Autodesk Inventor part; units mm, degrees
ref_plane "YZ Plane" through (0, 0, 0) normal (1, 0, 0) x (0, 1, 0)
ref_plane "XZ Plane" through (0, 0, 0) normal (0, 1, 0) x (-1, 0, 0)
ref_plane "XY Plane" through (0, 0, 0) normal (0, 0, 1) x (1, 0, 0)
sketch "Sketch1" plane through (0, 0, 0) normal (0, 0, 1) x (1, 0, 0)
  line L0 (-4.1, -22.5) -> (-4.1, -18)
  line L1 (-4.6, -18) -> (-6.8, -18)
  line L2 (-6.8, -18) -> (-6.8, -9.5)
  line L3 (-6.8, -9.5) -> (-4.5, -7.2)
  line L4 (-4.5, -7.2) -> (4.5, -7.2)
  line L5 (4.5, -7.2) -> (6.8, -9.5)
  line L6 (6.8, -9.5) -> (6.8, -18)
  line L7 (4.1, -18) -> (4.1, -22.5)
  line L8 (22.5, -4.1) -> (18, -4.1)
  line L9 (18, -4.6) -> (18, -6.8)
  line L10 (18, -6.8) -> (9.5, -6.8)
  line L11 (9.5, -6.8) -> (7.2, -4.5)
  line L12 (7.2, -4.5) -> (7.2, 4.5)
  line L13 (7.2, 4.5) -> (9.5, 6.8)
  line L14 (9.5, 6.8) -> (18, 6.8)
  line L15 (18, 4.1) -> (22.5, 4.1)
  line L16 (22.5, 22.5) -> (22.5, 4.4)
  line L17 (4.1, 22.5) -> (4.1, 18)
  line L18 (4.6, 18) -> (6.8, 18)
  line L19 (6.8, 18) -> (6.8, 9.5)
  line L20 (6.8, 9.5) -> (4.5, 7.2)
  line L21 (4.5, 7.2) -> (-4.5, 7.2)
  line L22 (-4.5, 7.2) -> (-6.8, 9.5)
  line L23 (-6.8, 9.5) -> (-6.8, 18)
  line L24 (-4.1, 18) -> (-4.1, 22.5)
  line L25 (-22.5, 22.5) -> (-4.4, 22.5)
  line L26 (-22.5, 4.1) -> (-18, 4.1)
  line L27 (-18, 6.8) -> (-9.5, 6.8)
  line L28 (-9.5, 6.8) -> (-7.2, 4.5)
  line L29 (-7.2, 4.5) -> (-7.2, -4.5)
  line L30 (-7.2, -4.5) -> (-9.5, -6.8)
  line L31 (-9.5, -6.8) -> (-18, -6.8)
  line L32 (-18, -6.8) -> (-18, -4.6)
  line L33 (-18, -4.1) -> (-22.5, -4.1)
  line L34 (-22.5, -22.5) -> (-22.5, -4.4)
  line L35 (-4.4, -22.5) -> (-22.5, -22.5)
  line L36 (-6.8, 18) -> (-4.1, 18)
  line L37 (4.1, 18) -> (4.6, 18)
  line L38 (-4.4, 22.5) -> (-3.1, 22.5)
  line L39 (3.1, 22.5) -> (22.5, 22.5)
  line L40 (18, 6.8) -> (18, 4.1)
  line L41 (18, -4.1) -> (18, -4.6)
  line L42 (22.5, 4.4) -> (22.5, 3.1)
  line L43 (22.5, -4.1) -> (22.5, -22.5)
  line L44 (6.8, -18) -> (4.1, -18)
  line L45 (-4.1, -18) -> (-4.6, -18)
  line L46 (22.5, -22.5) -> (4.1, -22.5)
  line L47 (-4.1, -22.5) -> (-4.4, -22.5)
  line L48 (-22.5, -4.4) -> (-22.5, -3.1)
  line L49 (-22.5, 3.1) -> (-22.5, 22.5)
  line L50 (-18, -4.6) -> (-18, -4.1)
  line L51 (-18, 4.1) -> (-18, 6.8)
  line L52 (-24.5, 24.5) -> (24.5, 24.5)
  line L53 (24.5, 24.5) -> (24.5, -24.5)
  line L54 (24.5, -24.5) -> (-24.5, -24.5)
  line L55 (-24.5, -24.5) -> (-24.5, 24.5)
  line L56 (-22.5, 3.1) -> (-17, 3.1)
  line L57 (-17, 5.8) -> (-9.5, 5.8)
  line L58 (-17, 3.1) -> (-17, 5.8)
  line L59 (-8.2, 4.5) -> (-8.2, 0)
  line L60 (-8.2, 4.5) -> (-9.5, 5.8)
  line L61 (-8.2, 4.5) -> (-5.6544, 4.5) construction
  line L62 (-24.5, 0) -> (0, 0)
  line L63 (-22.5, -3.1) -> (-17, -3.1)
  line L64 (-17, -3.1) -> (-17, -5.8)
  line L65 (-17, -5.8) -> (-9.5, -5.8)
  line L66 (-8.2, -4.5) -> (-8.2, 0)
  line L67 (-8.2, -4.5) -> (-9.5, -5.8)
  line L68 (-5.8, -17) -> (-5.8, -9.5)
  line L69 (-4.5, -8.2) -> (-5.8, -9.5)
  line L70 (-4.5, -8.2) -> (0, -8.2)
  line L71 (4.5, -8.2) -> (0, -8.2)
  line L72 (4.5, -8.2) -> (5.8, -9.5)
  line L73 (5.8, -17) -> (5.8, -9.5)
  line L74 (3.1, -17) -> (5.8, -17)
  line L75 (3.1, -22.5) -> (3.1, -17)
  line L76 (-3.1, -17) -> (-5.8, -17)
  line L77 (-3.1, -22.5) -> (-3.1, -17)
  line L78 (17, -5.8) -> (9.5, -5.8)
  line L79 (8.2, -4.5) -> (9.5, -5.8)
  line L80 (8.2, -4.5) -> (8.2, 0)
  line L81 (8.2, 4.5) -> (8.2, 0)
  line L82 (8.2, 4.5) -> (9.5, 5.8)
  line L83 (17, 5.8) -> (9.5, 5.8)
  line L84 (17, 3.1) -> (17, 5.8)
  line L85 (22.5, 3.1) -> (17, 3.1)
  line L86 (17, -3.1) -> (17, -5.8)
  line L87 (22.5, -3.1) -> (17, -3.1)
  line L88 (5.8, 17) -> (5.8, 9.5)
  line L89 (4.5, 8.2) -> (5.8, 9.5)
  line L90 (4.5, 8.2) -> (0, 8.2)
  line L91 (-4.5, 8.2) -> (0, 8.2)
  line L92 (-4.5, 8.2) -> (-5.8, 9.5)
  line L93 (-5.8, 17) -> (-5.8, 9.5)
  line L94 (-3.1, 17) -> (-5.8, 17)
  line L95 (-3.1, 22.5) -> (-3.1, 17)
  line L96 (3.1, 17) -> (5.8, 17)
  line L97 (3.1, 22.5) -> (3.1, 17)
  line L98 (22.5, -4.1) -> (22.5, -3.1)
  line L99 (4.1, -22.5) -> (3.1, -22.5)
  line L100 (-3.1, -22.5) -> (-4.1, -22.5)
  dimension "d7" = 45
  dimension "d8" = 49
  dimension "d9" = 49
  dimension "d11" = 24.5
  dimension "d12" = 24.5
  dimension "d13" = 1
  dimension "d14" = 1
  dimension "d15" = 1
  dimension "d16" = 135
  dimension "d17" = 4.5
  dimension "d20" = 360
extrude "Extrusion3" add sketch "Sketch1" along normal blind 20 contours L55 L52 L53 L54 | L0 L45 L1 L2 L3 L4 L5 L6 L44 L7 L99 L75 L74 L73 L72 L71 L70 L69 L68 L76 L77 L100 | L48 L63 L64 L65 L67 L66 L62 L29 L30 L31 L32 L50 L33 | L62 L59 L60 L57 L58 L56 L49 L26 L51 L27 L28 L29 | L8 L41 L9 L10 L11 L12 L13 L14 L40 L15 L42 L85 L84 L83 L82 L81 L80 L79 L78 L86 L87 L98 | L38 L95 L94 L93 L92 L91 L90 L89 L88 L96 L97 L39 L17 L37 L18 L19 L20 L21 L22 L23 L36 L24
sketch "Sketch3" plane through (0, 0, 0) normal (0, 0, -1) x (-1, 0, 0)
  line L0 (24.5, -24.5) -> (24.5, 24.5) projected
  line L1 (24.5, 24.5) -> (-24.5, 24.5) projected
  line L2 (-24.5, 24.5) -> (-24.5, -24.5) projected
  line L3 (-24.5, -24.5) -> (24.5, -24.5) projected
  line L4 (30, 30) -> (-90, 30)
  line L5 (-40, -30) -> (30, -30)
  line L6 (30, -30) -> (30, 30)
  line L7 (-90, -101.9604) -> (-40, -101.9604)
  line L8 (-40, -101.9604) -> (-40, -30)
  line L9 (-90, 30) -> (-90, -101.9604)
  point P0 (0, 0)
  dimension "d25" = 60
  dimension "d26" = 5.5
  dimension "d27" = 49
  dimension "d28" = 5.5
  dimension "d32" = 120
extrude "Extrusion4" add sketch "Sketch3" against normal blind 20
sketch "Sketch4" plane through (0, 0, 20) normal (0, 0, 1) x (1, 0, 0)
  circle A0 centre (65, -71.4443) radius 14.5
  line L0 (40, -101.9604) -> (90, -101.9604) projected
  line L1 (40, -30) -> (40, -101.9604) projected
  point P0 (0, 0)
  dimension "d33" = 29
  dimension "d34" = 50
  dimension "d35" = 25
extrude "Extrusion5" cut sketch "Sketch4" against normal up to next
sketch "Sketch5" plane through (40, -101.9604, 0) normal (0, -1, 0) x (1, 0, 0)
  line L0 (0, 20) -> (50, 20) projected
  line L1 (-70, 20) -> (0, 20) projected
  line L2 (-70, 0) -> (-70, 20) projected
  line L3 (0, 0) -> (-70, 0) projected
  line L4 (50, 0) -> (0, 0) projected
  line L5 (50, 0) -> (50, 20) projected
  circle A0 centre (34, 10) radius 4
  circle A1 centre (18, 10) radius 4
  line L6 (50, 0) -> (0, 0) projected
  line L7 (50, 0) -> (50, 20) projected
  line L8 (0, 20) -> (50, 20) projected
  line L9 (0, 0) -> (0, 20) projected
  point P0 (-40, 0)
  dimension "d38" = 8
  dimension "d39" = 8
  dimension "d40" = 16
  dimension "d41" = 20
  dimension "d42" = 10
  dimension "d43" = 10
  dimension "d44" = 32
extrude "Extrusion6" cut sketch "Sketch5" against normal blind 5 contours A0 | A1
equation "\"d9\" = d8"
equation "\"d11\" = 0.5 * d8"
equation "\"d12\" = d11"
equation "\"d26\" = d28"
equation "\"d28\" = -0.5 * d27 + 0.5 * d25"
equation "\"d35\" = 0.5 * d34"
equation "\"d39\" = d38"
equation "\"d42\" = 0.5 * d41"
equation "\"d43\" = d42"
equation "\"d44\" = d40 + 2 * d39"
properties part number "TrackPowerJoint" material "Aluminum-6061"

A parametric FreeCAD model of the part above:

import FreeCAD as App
import Part
import Sketcher
from FreeCAD import Vector

doc = App.newDocument("Part")
body = doc.addObject("PartDesign::Body", "Body")

sketch1 = doc.addObject("Sketcher::SketchObject", "Sketch")
body.addObject(sketch1)
sketch1.AttachmentSupport = (doc.XY_Plane, [""])
sketch1.MapMode = "FlatFace"
sketch1.addGeometry([
    Part.LineSegment(Vector(-24.5, 24.5, 0), Vector(-24.5, 0, 0)),
    Part.LineSegment(Vector(-24.5, 0, 0), Vector(-24.5, -24.5, 0)),
    Part.LineSegment(Vector(-24.5, -24.5, 0), Vector(24.5, -24.5, 0)),
    Part.LineSegment(Vector(24.5, -24.5, 0), Vector(24.5, 24.5, 0)),
    Part.LineSegment(Vector(24.5, 24.5, 0), Vector(-24.5, 24.5, 0)),
    Part.LineSegment(Vector(22.5, -22.5, 0), Vector(4.1, -22.5, 0)),
    Part.LineSegment(Vector(4.1, -22.5, 0), Vector(4.1, -18, 0)),
    Part.LineSegment(Vector(4.1, -18, 0), Vector(6.8, -18, 0)),
    Part.LineSegment(Vector(6.8, -18, 0), Vector(6.8, -9.5, 0)),
    Part.LineSegment(Vector(6.8, -9.5, 0), Vector(4.5, -7.2, 0)),
    Part.LineSegment(Vector(4.5, -7.2, 0), Vector(-4.5, -7.2, 0)),
    Part.LineSegment(Vector(-4.5, -7.2, 0), Vector(-6.8, -9.5, 0)),
    Part.LineSegment(Vector(-6.8, -9.5, 0), Vector(-6.8, -18, 0)),
    Part.LineSegment(Vector(-6.8, -18, 0), Vector(-4.1, -18, 0)),
    Part.LineSegment(Vector(-4.1, -18, 0), Vector(-4.1, -22.5, 0)),
    Part.LineSegment(Vector(-4.1, -22.5, 0), Vector(-22.5, -22.5, 0)),
    Part.LineSegment(Vector(-22.5, -22.5, 0), Vector(-22.5, -4.1, 0)),
    Part.LineSegment(Vector(-22.5, -4.1, 0), Vector(-18, -4.1, 0)),
    Part.LineSegment(Vector(-18, -4.1, 0), Vector(-18, -6.8, 0)),
    Part.LineSegment(Vector(-18, -6.8, 0), Vector(-9.5, -6.8, 0)),
    Part.LineSegment(Vector(-9.5, -6.8, 0), Vector(-7.2, -4.5, 0)),
    Part.LineSegment(Vector(-7.2, -4.5, 0), Vector(-7.2, 4.5, 0)),
    Part.LineSegment(Vector(-7.2, 4.5, 0), Vector(-9.5, 6.8, 0)),
    Part.LineSegment(Vector(-9.5, 6.8, 0), Vector(-18, 6.8, 0)),
    Part.LineSegment(Vector(-18, 6.8, 0), Vector(-18, 4.1, 0)),
    Part.LineSegment(Vector(-18, 4.1, 0), Vector(-22.5, 4.1, 0)),
    Part.LineSegment(Vector(-22.5, 4.1, 0), Vector(-22.5, 22.5, 0)),
    Part.LineSegment(Vector(-22.5, 22.5, 0), Vector(-4.1, 22.5, 0)),
    Part.LineSegment(Vector(-4.1, 22.5, 0), Vector(-4.1, 18, 0)),
    Part.LineSegment(Vector(-4.1, 18, 0), Vector(-6.8, 18, 0)),
    Part.LineSegment(Vector(-6.8, 18, 0), Vector(-6.8, 9.5, 0)),
    Part.LineSegment(Vector(-6.8, 9.5, 0), Vector(-4.5, 7.2, 0)),
    Part.LineSegment(Vector(-4.5, 7.2, 0), Vector(4.5, 7.2, 0)),
    Part.LineSegment(Vector(4.5, 7.2, 0), Vector(6.8, 9.5, 0)),
    Part.LineSegment(Vector(6.8, 9.5, 0), Vector(6.8, 18, 0)),
    Part.LineSegment(Vector(6.8, 18, 0), Vector(4.1, 18, 0)),
    Part.LineSegment(Vector(4.1, 18, 0), Vector(4.1, 22.5, 0)),
    Part.LineSegment(Vector(4.1, 22.5, 0), Vector(22.5, 22.5, 0)),
    Part.LineSegment(Vector(22.5, 22.5, 0), Vector(22.5, 4.1, 0)),
    Part.LineSegment(Vector(22.5, 4.1, 0), Vector(18, 4.1, 0)),
    Part.LineSegment(Vector(18, 4.1, 0), Vector(18, 6.8, 0)),
    Part.LineSegment(Vector(18, 6.8, 0), Vector(9.5, 6.8, 0)),
    Part.LineSegment(Vector(9.5, 6.8, 0), Vector(7.2, 4.5, 0)),
    Part.LineSegment(Vector(7.2, 4.5, 0), Vector(7.2, -4.5, 0)),
    Part.LineSegment(Vector(7.2, -4.5, 0), Vector(9.5, -6.8, 0)),
    Part.LineSegment(Vector(9.5, -6.8, 0), Vector(18, -6.8, 0)),
    Part.LineSegment(Vector(18, -6.8, 0), Vector(18, -4.1, 0)),
    Part.LineSegment(Vector(18, -4.1, 0), Vector(22.5, -4.1, 0)),
    Part.LineSegment(Vector(22.5, -4.1, 0), Vector(22.5, -22.5, 0)),
], False)
sketch1.addConstraint([
    Sketcher.Constraint("Coincident", 0, 2, 1, 1),
    Sketcher.Constraint("Coincident", 1, 2, 2, 1),
    Sketcher.Constraint("Coincident", 2, 2, 3, 1),
    Sketcher.Constraint("Coincident", 3, 2, 4, 1),
    Sketcher.Constraint("Coincident", 4, 2, 0, 1),
    Sketcher.Constraint("Coincident", 5, 2, 6, 1),
    Sketcher.Constraint("Coincident", 6, 2, 7, 1),
    Sketcher.Constraint("Coincident", 7, 2, 8, 1),
    Sketcher.Constraint("Coincident", 8, 2, 9, 1),
    Sketcher.Constraint("Coincident", 9, 2, 10, 1),
    Sketcher.Constraint("Coincident", 10, 2, 11, 1),
    Sketcher.Constraint("Coincident", 11, 2, 12, 1),
    Sketcher.Constraint("Coincident", 12, 2, 13, 1),
    Sketcher.Constraint("Coincident", 13, 2, 14, 1),
    Sketcher.Constraint("Coincident", 14, 2, 15, 1),
    Sketcher.Constraint("Coincident", 15, 2, 16, 1),
    Sketcher.Constraint("Coincident", 16, 2, 17, 1),
    Sketcher.Constraint("Coincident", 17, 2, 18, 1),
    Sketcher.Constraint("Coincident", 18, 2, 19, 1),
    Sketcher.Constraint("Coincident", 19, 2, 20, 1),
    Sketcher.Constraint("Coincident", 20, 2, 21, 1),
    Sketcher.Constraint("Coincident", 21, 2, 22, 1),
    Sketcher.Constraint("Coincident", 22, 2, 23, 1),
    Sketcher.Constraint("Coincident", 23, 2, 24, 1),
    Sketcher.Constraint("Coincident", 24, 2, 25, 1),
    Sketcher.Constraint("Coincident", 25, 2, 26, 1),
    Sketcher.Constraint("Coincident", 26, 2, 27, 1),
    Sketcher.Constraint("Coincident", 27, 2, 28, 1),
    Sketcher.Constraint("Coincident", 28, 2, 29, 1),
    Sketcher.Constraint("Coincident", 29, 2, 30, 1),
    Sketcher.Constraint("Coincident", 30, 2, 31, 1),
    Sketcher.Constraint("Coincident", 31, 2, 32, 1),
    Sketcher.Constraint("Coincident", 32, 2, 33, 1),
    Sketcher.Constraint("Coincident", 33, 2, 34, 1),
    Sketcher.Constraint("Coincident", 34, 2, 35, 1),
    Sketcher.Constraint("Coincident", 35, 2, 36, 1),
    Sketcher.Constraint("Coincident", 36, 2, 37, 1),
    Sketcher.Constraint("Coincident", 37, 2, 38, 1),
    Sketcher.Constraint("Coincident", 38, 2, 39, 1),
    Sketcher.Constraint("Coincident", 39, 2, 40, 1),
    Sketcher.Constraint("Coincident", 40, 2, 41, 1),
    Sketcher.Constraint("Coincident", 41, 2, 42, 1),
    Sketcher.Constraint("Coincident", 42, 2, 43, 1),
    Sketcher.Constraint("Coincident", 43, 2, 44, 1),
    Sketcher.Constraint("Coincident", 44, 2, 45, 1),
    Sketcher.Constraint("Coincident", 45, 2, 46, 1),
    Sketcher.Constraint("Coincident", 46, 2, 47, 1),
    Sketcher.Constraint("Coincident", 47, 2, 48, 1),
    Sketcher.Constraint("Coincident", 48, 2, 5, 1),
    Sketcher.Constraint("Vertical", 0),
    Sketcher.Constraint("Vertical", 1),
    Sketcher.Constraint("Horizontal", 2),
    Sketcher.Constraint("Vertical", 3),
    Sketcher.Constraint("Horizontal", 4),
    Sketcher.Constraint("Horizontal", 5),
    Sketcher.Constraint("Vertical", 6),
    Sketcher.Constraint("Horizontal", 7),
    Sketcher.Constraint("Vertical", 8),
    Sketcher.Constraint("Horizontal", 10),
    Sketcher.Constraint("Vertical", 12),
    Sketcher.Constraint("Horizontal", 13),
    Sketcher.Constraint("Vertical", 14),
    Sketcher.Constraint("Horizontal", 15),
    Sketcher.Constraint("Vertical", 16),
    Sketcher.Constraint("Horizontal", 17),
    Sketcher.Constraint("Vertical", 18),
    Sketcher.Constraint("Horizontal", 19),
    Sketcher.Constraint("Vertical", 21),
    Sketcher.Constraint("Horizontal", 23),
    Sketcher.Constraint("Vertical", 24),
    Sketcher.Constraint("Horizontal", 25),
    Sketcher.Constraint("Vertical", 26),
    Sketcher.Constraint("Horizontal", 27),
    Sketcher.Constraint("Vertical", 28),
    Sketcher.Constraint("Horizontal", 29),
    Sketcher.Constraint("Vertical", 30),
    Sketcher.Constraint("Horizontal", 32),
    Sketcher.Constraint("Vertical", 34),
    Sketcher.Constraint("Horizontal", 35),
    Sketcher.Constraint("Vertical", 36),
    Sketcher.Constraint("Horizontal", 37),
    Sketcher.Constraint("Vertical", 38),
    Sketcher.Constraint("Horizontal", 39),
    Sketcher.Constraint("Vertical", 40),
    Sketcher.Constraint("Horizontal", 41),
    Sketcher.Constraint("Vertical", 43),
    Sketcher.Constraint("Horizontal", 45),
    Sketcher.Constraint("Vertical", 46),
    Sketcher.Constraint("Horizontal", 47),
    Sketcher.Constraint("Vertical", 48),
    Sketcher.Constraint("Symmetric", 1, 2, 3, 2, -1, 1),
    Sketcher.Constraint("Symmetric", 5, 2, 27, 2, -1, 1),
    Sketcher.Constraint("Symmetric", 7, 2, 29, 2, -1, 1),
    Sketcher.Constraint("Symmetric", 9, 2, 31, 2, -1, 1),
    Sketcher.Constraint("Symmetric", 11, 2, 33, 2, -1, 1),
    Sketcher.Constraint("Symmetric", 13, 2, 35, 2, -1, 1),
    Sketcher.Constraint("Symmetric", 15, 2, 37, 2, -1, 1),
    Sketcher.Constraint("Symmetric", 17, 2, 39, 2, -1, 1),
    Sketcher.Constraint("Symmetric", 19, 2, 41, 2, -1, 1),
    Sketcher.Constraint("Symmetric", 20, 2, 42, 2, -1, 1),
    Sketcher.Constraint("Symmetric", 22, 2, 44, 2, -1, 1),
    Sketcher.Constraint("Symmetric", 24, 2, 46, 2, -1, 1),
    Sketcher.Constraint("Symmetric", 8, 2, 11, 2, -2),
    Sketcher.Constraint("Symmetric", 6, 2, 13, 2, -2),
    Sketcher.Constraint("Symmetric", 26, 2, 37, 2, -2),
    Sketcher.Constraint("Symmetric", 24, 2, 39, 2, -2),
    Sketcher.Constraint("Symmetric", 22, 2, 41, 2, -2),
    Sketcher.Constraint("PointOnObject", 0, 2, -1),
    Sketcher.Constraint("Perpendicular", 9, 11),
    Sketcher.Constraint("Parallel", 11, 20),
    Sketcher.Constraint("Perpendicular", 20, 22),
    Sketcher.Constraint("Parallel", 22, 31),
    Sketcher.Constraint("Perpendicular", 31, 33),
    Sketcher.Constraint("Perpendicular", 42, 44),
    Sketcher.Constraint("Horizontal", 21, 2, 42, 2),
    Sketcher.Constraint("Vertical", 38, 2, 47, 2),
    Sketcher.Constraint("Equal", 4, 3),
    Sketcher.Constraint("Equal", 47, 6),
    Sketcher.Constraint("Equal", 45, 8),
    Sketcher.Constraint("Equal", 37, 16),
    Sketcher.Constraint("Equal", 35, 18),
    Sketcher.Constraint("Equal", 32, 21),
    Sketcher.Constraint("Equal", 11, 20),
    Sketcher.Constraint("DistanceX", 2, 1, 2, 2, 49.0),
    Sketcher.Constraint("DistanceX", 17, 1, 17, 2, 4.5),
    Sketcher.Constraint("DistanceX", -1, 1, 9, 2, 4.5),
    Sketcher.Constraint("DistanceX", 5, 2, 5, 1, 18.4),
    Sketcher.Constraint("DistanceX", 7, 1, 7, 2, 2.7),
    Sketcher.Constraint("DistanceX", 19, 1, 19, 2, 8.5),
    Sketcher.Constraint("DistanceY", 6, 2, -1, 1, 18.0),
])
pad1 = doc.addObject("PartDesign::Pad", "Pad")
body.addObject(pad1)
pad1.Profile = sketch1
pad1.Length = 20

sketch2 = doc.addObject("Sketcher::SketchObject", "Sketch001")
body.addObject(sketch2)
sketch2.AttachmentSupport = (doc.XY_Plane, [""])
sketch2.MapMode = "FlatFace"
sketch2.addGeometry([
    Part.LineSegment(Vector(-30, -30, 0), Vector(-30, 30, 0)),
    Part.LineSegment(Vector(-30, 30, 0), Vector(90, 30, 0)),
    Part.LineSegment(Vector(90, 30, 0), Vector(90, -102, 0)),
    Part.LineSegment(Vector(90, -102, 0), Vector(40, -102, 0)),
    Part.LineSegment(Vector(40, -102, 0), Vector(40, -30, 0)),
    Part.LineSegment(Vector(40, -30, 0), Vector(-30, -30, 0)),
    Part.LineSegment(Vector(-24, 24, 0), Vector(-24, -24, 0)),
    Part.LineSegment(Vector(-24, -24, 0), Vector(24, -24, 0)),
    Part.LineSegment(Vector(24, -24, 0), Vector(24, 24, 0)),
    Part.LineSegment(Vector(24, 24, 0), Vector(-24, 24, 0)),
], False)
sketch2.addConstraint([
    Sketcher.Constraint("Coincident", 0, 2, 1, 1),
    Sketcher.Constraint("Coincident", 1, 2, 2, 1),
    Sketcher.Constraint("Coincident", 2, 2, 3, 1),
    Sketcher.Constraint("Coincident", 3, 2, 4, 1),
    Sketcher.Constraint("Coincident", 4, 2, 5, 1),
    Sketcher.Constraint("Coincident", 5, 2, 0, 1),
    Sketcher.Constraint("Coincident", 6, 2, 7, 1),
    Sketcher.Constraint("Coincident", 7, 2, 8, 1),
    Sketcher.Constraint("Coincident", 8, 2, 9, 1),
    Sketcher.Constraint("Coincident", 9, 2, 6, 1),
    Sketcher.Constraint("Vertical", 0),
    Sketcher.Constraint("Horizontal", 1),
    Sketcher.Constraint("Vertical", 2),
    Sketcher.Constraint("Horizontal", 3),
    Sketcher.Constraint("Vertical", 4),
    Sketcher.Constraint("Horizontal", 5),
    Sketcher.Constraint("Vertical", 6),
    Sketcher.Constraint("Horizontal", 7),
    Sketcher.Constraint("Vertical", 8),
    Sketcher.Constraint("Horizontal", 9),
    Sketcher.Constraint("Symmetric", 6, 2, 8, 2, -1, 1),
    Sketcher.Constraint("Equal", 9, 6),
    Sketcher.Constraint("DistanceX", 1, 1, 1, 2, 120.0),
    Sketcher.Constraint("DistanceX", 7, 1, 7, 2, 49.0),
    Sketcher.Constraint("DistanceY", 0, 1, 0, 2, 60.0),
    Sketcher.Constraint("DistanceX", 5, 2, 6, 2, 5.5),
    Sketcher.Constraint("DistanceY", 5, 2, 6, 2, 5.5),
    Sketcher.Constraint("DistanceX", 3, 2, 3, 1, 50.0),
    Sketcher.Constraint("DistanceY", 2, 2, 2, 1, 131.9604),
])
pad2 = doc.addObject("PartDesign::Pad", "Pad001")
body.addObject(pad2)
pad2.Profile = sketch2
pad2.Length = 20

sketch3 = doc.addObject("Sketcher::SketchObject", "Sketch002")
body.addObject(sketch3)
sketch3.AttachmentSupport = (doc.XY_Plane, [""])
sketch3.MapMode = "FlatFace"
sketch3.AttachmentOffset = App.Placement(Vector(0, 0, 20), App.Rotation())
sketch3.addGeometry(Part.Circle(Vector(65, -71, 0), Vector(0, 0, 1), 14), False)
sketch3.addConstraint([
    Sketcher.Constraint("Diameter", 0, 29.0),
    Sketcher.Constraint("DistanceX", -1, 1, 0, 3, 65.0),
    Sketcher.Constraint("DistanceY", 0, 3, -1, 1, 71.4443),
])
pocket1 = doc.addObject("PartDesign::Pocket", "Pocket")
body.addObject(pocket1)
pocket1.Profile = sketch3
pocket1.Type = "UpToFirst"

sketch4 = doc.addObject("Sketcher::SketchObject", "Sketch003")
body.addObject(sketch4)
sketch4.AttachmentSupport = (doc.XZ_Plane, [""])
sketch4.MapMode = "FlatFace"
sketch4.AttachmentOffset = App.Placement(Vector(0, 0, 101.9604), App.Rotation())
sketch4.addGeometry([
    Part.Circle(Vector(74, 10, 0), Vector(0, 0, 1), 4),
    Part.Circle(Vector(58, 10, 0), Vector(0, 0, 1), 4),
], False)
sketch4.addConstraint([
    Sketcher.Constraint("Equal", 0, 1),
    Sketcher.Constraint("Horizontal", 0, 3, 1, 3),
    Sketcher.Constraint("Diameter", 0, 8.0),
    Sketcher.Constraint("DistanceY", -1, 1, 0, 3, 10.0),
    Sketcher.Constraint("DistanceX", 1, 3, 0, 3, 16.0),
    Sketcher.Constraint("DistanceX", -1, 1, 0, 3, 74.0),
])
pocket2 = doc.addObject("PartDesign::Pocket", "Pocket001")
body.addObject(pocket2)
pocket2.Profile = sketch4
pocket2.Length = 5

doc.recompute()
